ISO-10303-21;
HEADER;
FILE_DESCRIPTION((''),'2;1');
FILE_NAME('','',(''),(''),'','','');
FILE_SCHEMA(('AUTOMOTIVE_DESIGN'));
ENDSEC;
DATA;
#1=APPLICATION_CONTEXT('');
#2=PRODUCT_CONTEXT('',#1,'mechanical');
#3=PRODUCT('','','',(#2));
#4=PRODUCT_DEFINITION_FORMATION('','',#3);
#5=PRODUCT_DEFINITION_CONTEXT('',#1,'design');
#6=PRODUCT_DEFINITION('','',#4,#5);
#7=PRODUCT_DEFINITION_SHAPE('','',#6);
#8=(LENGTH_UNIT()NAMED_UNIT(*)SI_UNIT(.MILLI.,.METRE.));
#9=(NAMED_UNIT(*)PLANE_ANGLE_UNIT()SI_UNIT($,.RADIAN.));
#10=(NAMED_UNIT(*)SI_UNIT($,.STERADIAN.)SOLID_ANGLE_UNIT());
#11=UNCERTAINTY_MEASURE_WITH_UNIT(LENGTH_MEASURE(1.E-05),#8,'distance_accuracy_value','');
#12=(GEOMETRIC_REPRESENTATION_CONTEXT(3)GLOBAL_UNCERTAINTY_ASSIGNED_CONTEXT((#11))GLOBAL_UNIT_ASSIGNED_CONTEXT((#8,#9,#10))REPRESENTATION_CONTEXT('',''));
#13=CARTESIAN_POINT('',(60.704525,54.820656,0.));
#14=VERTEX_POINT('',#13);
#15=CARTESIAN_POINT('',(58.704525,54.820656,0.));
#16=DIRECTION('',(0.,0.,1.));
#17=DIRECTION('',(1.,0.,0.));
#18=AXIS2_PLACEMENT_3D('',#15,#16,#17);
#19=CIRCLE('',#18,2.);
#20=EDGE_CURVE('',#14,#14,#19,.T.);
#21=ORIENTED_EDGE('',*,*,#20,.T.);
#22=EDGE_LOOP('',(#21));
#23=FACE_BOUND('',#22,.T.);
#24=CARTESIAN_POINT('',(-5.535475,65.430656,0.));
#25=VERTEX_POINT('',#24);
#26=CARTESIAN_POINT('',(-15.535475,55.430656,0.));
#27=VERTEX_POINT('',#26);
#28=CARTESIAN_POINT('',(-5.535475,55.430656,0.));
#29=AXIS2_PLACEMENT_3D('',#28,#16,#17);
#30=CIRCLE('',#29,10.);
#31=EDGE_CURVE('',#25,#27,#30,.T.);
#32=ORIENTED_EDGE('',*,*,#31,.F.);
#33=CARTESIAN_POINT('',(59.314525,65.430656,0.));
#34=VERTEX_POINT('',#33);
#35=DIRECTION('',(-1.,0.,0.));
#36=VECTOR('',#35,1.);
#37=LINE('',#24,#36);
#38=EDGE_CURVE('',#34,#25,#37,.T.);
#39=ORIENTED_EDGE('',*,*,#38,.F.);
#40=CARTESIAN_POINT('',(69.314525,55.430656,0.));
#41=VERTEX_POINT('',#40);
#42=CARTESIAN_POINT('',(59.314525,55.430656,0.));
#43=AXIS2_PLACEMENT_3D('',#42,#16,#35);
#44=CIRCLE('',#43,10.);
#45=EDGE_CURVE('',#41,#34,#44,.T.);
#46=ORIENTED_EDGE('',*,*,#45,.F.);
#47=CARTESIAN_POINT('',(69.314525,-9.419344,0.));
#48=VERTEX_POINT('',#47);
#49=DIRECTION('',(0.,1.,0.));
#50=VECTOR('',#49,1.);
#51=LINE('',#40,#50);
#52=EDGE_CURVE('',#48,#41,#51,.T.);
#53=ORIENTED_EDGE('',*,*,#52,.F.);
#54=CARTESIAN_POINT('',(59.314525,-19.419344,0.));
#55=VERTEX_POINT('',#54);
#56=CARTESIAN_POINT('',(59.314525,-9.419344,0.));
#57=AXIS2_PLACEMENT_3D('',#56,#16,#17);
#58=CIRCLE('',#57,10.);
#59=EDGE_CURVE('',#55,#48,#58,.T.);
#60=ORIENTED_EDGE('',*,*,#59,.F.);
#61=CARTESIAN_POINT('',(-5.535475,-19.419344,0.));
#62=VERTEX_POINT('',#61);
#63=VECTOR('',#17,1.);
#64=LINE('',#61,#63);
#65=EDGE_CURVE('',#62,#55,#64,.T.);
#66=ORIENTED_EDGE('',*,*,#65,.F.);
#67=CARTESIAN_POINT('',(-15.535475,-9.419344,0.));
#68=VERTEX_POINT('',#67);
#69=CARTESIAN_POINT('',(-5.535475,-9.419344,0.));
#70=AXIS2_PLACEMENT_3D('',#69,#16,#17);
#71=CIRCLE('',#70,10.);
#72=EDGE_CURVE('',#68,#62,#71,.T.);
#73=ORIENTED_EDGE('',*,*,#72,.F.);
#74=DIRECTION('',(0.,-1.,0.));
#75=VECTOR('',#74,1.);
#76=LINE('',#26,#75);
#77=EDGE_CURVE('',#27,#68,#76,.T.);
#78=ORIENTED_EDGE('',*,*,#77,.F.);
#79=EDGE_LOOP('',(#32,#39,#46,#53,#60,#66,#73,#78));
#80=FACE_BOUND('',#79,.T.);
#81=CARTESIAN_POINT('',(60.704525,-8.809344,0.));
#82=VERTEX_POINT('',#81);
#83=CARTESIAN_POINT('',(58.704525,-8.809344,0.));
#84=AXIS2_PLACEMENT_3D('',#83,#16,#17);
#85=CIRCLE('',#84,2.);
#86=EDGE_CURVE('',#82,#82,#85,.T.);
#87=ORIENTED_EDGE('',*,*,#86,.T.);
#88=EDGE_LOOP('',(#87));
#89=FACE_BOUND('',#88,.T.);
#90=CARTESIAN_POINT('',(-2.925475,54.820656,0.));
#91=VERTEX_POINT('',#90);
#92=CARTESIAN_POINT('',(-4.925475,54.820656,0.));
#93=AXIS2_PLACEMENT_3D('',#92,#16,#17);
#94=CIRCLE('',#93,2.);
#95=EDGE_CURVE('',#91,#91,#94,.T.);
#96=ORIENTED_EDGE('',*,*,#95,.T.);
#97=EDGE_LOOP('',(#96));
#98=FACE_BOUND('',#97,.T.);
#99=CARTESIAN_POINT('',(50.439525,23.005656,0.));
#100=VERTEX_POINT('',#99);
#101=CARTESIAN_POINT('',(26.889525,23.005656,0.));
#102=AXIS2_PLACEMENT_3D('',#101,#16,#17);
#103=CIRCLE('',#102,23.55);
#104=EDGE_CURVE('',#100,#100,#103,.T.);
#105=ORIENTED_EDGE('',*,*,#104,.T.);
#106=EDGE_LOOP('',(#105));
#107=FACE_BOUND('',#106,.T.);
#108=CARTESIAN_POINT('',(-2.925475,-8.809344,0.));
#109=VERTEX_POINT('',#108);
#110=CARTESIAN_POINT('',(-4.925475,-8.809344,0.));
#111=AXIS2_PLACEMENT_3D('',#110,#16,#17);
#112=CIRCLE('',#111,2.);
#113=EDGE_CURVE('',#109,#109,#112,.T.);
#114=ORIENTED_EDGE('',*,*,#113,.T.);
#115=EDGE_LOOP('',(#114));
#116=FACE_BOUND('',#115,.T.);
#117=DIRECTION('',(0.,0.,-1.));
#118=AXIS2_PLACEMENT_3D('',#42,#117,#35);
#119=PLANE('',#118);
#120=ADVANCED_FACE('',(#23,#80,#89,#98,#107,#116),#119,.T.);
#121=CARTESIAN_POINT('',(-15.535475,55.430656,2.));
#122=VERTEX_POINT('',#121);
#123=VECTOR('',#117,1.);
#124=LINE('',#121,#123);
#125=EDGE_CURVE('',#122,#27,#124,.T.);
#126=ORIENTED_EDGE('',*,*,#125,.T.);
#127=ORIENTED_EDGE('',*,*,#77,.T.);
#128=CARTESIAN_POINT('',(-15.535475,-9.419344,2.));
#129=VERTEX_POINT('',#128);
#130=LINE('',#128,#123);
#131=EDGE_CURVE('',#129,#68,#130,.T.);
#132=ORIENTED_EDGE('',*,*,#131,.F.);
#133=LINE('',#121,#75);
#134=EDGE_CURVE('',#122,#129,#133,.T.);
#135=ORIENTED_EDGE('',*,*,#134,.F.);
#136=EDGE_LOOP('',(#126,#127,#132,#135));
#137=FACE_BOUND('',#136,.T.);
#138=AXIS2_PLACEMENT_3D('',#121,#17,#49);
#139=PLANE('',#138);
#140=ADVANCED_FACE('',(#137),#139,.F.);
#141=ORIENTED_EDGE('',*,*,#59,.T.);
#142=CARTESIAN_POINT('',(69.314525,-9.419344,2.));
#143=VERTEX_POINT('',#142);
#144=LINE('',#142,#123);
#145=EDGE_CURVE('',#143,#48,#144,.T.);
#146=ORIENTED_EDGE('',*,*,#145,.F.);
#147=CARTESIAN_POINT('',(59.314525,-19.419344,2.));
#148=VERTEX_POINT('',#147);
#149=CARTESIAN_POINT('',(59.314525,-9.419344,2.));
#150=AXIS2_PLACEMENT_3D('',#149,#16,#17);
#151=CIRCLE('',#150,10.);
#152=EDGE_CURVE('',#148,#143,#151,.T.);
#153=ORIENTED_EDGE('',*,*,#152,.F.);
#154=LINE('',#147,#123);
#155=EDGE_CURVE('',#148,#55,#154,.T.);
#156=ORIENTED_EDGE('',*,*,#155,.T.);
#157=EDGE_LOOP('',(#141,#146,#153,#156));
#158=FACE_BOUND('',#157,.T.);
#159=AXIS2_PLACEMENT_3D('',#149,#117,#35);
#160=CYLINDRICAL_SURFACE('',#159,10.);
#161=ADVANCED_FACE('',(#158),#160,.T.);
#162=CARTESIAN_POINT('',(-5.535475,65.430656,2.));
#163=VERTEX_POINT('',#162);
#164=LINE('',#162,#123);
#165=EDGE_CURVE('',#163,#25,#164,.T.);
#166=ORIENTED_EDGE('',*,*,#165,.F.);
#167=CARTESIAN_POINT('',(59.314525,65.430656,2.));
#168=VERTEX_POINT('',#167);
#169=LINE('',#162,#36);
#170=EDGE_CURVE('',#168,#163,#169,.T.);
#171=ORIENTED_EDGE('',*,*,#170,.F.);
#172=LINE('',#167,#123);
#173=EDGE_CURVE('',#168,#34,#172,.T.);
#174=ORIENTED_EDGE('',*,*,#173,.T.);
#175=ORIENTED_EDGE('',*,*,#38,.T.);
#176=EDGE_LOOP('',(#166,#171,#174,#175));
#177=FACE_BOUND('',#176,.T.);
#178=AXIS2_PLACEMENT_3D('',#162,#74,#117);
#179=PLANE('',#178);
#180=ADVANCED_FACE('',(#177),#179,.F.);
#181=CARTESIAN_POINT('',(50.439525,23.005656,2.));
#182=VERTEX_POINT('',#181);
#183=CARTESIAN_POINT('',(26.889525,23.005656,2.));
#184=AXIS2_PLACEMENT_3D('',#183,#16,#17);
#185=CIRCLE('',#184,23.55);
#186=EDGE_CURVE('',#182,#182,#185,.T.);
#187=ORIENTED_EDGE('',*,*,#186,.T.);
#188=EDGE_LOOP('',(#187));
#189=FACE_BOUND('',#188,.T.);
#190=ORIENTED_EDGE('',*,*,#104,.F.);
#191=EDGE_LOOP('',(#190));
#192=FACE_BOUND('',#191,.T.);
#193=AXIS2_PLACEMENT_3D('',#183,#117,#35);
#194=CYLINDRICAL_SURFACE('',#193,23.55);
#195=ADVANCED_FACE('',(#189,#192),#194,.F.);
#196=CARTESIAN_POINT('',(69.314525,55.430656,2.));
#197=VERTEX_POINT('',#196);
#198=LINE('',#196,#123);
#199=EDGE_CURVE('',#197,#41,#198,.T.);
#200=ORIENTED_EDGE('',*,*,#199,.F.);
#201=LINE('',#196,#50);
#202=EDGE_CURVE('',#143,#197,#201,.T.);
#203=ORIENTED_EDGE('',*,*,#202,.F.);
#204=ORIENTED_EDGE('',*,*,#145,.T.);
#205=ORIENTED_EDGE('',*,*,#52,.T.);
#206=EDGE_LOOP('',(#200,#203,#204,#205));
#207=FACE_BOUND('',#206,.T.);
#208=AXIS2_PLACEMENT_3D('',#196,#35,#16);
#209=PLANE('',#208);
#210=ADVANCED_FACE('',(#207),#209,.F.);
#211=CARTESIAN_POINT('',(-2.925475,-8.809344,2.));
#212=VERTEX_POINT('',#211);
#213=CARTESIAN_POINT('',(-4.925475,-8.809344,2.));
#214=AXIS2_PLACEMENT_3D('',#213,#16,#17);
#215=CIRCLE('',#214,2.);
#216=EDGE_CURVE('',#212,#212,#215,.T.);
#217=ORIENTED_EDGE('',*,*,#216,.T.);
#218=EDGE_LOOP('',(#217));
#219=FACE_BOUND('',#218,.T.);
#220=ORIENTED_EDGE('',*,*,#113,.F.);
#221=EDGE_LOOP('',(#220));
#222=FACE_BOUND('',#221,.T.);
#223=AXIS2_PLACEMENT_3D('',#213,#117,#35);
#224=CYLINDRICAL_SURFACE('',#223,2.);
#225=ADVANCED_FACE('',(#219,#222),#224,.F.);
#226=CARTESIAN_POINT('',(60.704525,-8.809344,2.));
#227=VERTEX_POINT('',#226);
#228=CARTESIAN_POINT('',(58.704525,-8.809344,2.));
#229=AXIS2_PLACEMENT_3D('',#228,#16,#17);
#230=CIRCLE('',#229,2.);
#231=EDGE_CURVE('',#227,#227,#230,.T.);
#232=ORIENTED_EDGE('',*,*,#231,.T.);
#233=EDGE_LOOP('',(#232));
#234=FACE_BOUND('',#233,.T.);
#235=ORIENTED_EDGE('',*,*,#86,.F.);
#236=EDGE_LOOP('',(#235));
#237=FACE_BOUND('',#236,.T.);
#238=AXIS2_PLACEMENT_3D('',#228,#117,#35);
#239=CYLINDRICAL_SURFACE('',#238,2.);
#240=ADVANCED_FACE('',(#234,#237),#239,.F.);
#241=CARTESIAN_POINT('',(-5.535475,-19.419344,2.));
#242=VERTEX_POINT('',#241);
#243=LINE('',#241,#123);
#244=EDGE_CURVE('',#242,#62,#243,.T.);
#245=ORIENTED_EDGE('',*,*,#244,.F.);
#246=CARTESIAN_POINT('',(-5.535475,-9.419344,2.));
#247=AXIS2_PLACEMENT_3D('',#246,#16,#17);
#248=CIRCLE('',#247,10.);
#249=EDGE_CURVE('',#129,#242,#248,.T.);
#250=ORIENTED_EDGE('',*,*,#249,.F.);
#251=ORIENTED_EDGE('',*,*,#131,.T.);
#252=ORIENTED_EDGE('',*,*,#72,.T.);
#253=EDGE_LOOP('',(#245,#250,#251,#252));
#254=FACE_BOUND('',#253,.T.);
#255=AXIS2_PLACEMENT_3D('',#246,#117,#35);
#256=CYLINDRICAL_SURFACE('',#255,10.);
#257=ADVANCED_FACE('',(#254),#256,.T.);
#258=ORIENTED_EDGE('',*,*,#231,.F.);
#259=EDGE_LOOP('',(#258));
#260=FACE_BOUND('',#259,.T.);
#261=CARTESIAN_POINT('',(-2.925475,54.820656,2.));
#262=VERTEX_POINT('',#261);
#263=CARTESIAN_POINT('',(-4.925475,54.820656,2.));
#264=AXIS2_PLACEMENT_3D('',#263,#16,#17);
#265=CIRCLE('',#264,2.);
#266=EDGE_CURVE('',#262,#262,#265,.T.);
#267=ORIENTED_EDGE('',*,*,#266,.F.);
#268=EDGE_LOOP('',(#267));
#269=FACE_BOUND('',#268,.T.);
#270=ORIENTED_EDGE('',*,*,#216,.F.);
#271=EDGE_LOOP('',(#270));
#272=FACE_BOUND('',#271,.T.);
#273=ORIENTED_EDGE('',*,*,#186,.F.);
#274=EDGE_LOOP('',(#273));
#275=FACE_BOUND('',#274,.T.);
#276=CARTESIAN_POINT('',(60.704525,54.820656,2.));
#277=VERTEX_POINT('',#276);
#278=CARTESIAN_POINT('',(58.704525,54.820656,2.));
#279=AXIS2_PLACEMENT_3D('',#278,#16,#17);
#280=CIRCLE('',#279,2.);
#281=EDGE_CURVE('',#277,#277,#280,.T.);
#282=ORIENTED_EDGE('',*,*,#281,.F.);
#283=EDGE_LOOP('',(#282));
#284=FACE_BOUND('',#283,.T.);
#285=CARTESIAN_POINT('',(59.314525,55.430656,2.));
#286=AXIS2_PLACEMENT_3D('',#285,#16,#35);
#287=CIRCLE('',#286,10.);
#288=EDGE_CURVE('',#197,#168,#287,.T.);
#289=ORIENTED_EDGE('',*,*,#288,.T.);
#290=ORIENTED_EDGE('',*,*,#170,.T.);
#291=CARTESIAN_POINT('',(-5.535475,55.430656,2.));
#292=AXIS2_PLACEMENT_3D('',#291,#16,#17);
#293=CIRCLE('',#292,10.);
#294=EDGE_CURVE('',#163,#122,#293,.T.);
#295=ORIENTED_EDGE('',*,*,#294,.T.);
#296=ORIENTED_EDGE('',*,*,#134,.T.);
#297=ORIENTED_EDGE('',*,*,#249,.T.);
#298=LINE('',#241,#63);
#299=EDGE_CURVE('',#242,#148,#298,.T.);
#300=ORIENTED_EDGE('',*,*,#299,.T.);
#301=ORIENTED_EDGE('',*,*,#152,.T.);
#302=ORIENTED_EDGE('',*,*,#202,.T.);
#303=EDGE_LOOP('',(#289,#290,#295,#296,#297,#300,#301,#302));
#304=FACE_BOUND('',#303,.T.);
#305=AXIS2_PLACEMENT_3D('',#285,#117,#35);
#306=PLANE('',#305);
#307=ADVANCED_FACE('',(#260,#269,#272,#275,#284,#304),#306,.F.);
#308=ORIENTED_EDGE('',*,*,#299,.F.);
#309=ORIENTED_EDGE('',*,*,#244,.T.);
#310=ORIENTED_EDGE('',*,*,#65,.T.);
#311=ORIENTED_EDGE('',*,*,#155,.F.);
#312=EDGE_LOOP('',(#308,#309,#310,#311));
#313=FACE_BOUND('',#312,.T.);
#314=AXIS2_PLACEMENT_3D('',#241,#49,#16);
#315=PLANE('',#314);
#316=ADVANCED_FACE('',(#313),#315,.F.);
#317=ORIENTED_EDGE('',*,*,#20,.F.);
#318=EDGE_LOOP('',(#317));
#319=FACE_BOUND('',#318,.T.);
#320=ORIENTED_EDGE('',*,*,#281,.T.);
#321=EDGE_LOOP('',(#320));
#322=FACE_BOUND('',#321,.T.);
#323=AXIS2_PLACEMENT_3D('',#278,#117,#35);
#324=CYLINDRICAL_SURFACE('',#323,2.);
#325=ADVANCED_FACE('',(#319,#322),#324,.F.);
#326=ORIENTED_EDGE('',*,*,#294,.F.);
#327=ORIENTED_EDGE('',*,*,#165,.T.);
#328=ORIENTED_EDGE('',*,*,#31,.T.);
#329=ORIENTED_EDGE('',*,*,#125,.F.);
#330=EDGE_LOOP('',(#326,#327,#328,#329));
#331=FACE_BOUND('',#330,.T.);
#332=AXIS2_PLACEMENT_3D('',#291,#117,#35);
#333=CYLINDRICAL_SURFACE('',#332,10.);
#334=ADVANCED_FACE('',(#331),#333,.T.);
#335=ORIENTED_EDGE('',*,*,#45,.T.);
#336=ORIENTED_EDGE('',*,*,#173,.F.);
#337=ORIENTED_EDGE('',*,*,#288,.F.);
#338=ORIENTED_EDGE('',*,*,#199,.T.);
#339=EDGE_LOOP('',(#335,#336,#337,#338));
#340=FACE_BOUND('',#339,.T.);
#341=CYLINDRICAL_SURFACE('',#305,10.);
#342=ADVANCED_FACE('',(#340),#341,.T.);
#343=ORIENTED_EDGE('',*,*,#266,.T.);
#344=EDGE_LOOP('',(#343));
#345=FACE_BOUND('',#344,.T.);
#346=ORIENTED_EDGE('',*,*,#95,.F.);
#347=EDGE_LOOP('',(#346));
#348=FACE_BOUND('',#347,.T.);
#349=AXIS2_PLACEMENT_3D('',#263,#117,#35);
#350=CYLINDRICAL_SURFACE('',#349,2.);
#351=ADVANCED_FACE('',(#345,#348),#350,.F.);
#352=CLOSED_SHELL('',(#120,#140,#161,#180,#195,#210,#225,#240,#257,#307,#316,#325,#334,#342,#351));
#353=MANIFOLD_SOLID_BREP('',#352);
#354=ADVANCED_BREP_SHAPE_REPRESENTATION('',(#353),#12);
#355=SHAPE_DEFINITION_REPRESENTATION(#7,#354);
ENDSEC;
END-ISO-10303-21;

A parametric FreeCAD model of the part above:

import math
import FreeCAD as App
import Part
import Sketcher
Q = App.Units.Quantity

doc = App.newDocument("Part")
body = doc.addObject("PartDesign::Body", "Body")

sketch1 = body.newObject("Sketcher::SketchObject", "Sketch")
sketch1.AttachmentSupport = (doc.getObject("XY_Plane"), [""])
sketch1.MapMode = "FlatFace"
sketch1.addGeometry([
    Part.LineSegment(App.Vector(59.314525, 65.430656, 0), App.Vector(-5.535475, 65.430656, 0)),
    Part.ArcOfCircle(Part.Circle(App.Vector(-5.535475, 55.430656, 0), App.Vector(0, 0, 1), 10), math.radians(90), math.radians(180)),
    Part.LineSegment(App.Vector(-15.535475, 55.430656, 0), App.Vector(-15.535475, -9.419344, 0)),
    Part.ArcOfCircle(Part.Circle(App.Vector(-5.535475, -9.419344, 0), App.Vector(0, 0, 1), 10), math.radians(-180), math.radians(-90)),
    Part.LineSegment(App.Vector(-5.535475, -19.419344, 0), App.Vector(59.314525, -19.419344, 0)),
    Part.ArcOfCircle(Part.Circle(App.Vector(59.314525, -9.419344, 0), App.Vector(0, 0, 1), 10), math.radians(-90), math.radians(0)),
    Part.LineSegment(App.Vector(69.314525, -9.419344, 0), App.Vector(69.314525, 55.430656, 0)),
    Part.ArcOfCircle(Part.Circle(App.Vector(59.314525, 55.430656, 0), App.Vector(0, 0, 1), 10), math.radians(0), math.radians(90)),
    Part.Circle(App.Vector(58.704525, -8.809344, 0), App.Vector(0, 0, 1), 2),
    Part.Circle(App.Vector(-4.925475, -8.809344, 0), App.Vector(0, 0, 1), 2),
    Part.Circle(App.Vector(58.704525, 54.820656, 0), App.Vector(0, 0, 1), 2),
    Part.Circle(App.Vector(26.889525, 23.005656, 0), App.Vector(0, 0, 1), 23.55),
    Part.Circle(App.Vector(-4.925475, 54.820656, 0), App.Vector(0, 0, 1), 2),
], False)
sketch1.addConstraint([
    Sketcher.Constraint("Tangent", 0, 2, 1, 1),
    Sketcher.Constraint("Tangent", 1, 2, 2, 1),
    Sketcher.Constraint("Tangent", 2, 2, 3, 1),
    Sketcher.Constraint("Tangent", 3, 2, 4, 1),
    Sketcher.Constraint("Tangent", 4, 2, 5, 1),
    Sketcher.Constraint("Tangent", 5, 2, 6, 1),
    Sketcher.Constraint("Tangent", 6, 2, 7, 1),
    Sketcher.Constraint("Tangent", 7, 2, 0, 1),
    Sketcher.Constraint("Horizontal", 0),
    Sketcher.Constraint("Vertical", 2),
    Sketcher.Constraint("Horizontal", 4),
    Sketcher.Constraint("Vertical", 6),
    Sketcher.Constraint("Equal", 1, 3),
    Sketcher.Constraint("Equal", 3, 5),
    Sketcher.Constraint("Equal", 5, 7),
    Sketcher.Constraint("Equal", 8, 9),
    Sketcher.Constraint("Equal", 9, 10),
    Sketcher.Constraint("Equal", 10, 12),
    Sketcher.Constraint("Horizontal", 8, 3, 9, 3),
    Sketcher.Constraint("Horizontal", 10, 3, 12, 3),
    Sketcher.Constraint("Vertical", 8, 3, 10, 3),
    Sketcher.Constraint("Vertical", 9, 3, 12, 3),
    Sketcher.Constraint("Equal", 4, 2),
    Sketcher.Constraint("Diameter", 8, Q("4 mm")),
    Sketcher.Constraint("Radius", 1, Q("10 mm")),
    Sketcher.Constraint("Diameter", 11, Q("47.1 mm")),
    Sketcher.Constraint("DistanceX", 0, 2, 0, 1, Q("64.85 mm")),
    Sketcher.Constraint("DistanceX", 8, 3, 5, 3, Q("0.61 mm")),
    Sketcher.Constraint("DistanceY", 5, 3, 8, 3, Q("0.61 mm")),
    Sketcher.Constraint("DistanceX", 3, 3, 9, 3, Q("0.61 mm")),
    Sketcher.Constraint("DistanceY", 10, 3, 7, 3, Q("0.61 mm")),
    Sketcher.Constraint("DistanceX", 11, 3, 8, 3, Q("31.815 mm")),
    Sketcher.Constraint("DistanceY", 8, 3, 11, 3, Q("31.815 mm")),
    Sketcher.Constraint("DistanceX", 1, 3, -1, 1, Q("5.535475 mm")),
    Sketcher.Constraint("DistanceY", -1, 1, 1, 3, Q("55.430656 mm")),
])
pad1 = body.newObject("PartDesign::Pad", "Pad")
pad1.Profile = sketch1
pad1.Length = 2

doc.recompute()
